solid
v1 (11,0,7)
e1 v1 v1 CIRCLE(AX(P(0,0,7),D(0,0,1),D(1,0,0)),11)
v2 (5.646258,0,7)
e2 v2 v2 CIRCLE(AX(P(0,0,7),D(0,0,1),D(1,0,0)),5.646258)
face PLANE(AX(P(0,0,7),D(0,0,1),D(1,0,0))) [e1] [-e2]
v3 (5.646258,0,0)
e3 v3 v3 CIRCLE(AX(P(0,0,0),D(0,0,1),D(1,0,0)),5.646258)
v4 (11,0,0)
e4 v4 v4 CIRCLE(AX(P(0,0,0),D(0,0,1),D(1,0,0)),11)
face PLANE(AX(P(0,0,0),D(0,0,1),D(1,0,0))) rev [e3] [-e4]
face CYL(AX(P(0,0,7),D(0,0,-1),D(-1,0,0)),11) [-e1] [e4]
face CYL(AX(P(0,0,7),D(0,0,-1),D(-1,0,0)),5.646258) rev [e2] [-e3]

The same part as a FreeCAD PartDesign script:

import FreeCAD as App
import Part
import Sketcher
Q = App.Units.Quantity

doc = App.newDocument("Part")
body = doc.addObject("PartDesign::Body", "Body")

# Sketch on XY plane
sketch1 = body.newObject("Sketcher::SketchObject", "Sketch")
sketch1.AttachmentSupport = (doc.getObject("XY_Plane"), [""])
sketch1.MapMode = "FlatFace"
sketch1.addGeometry(Part.Circle(App.Vector(0, 0, 0), App.Vector(0, 0, 1), 11), False)
sketch1.addGeometry(Part.Circle(App.Vector(0, 0, 0), App.Vector(0, 0, 1), 6), False)
sketch1.addConstraint(Sketcher.Constraint("Coincident", 0, 3, -1, 1))
sketch1.addConstraint(Sketcher.Constraint("Coincident", 1, 3, -1, 1))
sketch1.addConstraint(Sketcher.Constraint("Diameter", 0, Q("22 mm")))
sketch1.addConstraint(Sketcher.Constraint("Diameter", 1, Q("11.292517 mm")))
pad1 = body.newObject("PartDesign::Pad", "Pad")
pad1.Profile = sketch1
pad1.Length = 7

doc.recompute()
